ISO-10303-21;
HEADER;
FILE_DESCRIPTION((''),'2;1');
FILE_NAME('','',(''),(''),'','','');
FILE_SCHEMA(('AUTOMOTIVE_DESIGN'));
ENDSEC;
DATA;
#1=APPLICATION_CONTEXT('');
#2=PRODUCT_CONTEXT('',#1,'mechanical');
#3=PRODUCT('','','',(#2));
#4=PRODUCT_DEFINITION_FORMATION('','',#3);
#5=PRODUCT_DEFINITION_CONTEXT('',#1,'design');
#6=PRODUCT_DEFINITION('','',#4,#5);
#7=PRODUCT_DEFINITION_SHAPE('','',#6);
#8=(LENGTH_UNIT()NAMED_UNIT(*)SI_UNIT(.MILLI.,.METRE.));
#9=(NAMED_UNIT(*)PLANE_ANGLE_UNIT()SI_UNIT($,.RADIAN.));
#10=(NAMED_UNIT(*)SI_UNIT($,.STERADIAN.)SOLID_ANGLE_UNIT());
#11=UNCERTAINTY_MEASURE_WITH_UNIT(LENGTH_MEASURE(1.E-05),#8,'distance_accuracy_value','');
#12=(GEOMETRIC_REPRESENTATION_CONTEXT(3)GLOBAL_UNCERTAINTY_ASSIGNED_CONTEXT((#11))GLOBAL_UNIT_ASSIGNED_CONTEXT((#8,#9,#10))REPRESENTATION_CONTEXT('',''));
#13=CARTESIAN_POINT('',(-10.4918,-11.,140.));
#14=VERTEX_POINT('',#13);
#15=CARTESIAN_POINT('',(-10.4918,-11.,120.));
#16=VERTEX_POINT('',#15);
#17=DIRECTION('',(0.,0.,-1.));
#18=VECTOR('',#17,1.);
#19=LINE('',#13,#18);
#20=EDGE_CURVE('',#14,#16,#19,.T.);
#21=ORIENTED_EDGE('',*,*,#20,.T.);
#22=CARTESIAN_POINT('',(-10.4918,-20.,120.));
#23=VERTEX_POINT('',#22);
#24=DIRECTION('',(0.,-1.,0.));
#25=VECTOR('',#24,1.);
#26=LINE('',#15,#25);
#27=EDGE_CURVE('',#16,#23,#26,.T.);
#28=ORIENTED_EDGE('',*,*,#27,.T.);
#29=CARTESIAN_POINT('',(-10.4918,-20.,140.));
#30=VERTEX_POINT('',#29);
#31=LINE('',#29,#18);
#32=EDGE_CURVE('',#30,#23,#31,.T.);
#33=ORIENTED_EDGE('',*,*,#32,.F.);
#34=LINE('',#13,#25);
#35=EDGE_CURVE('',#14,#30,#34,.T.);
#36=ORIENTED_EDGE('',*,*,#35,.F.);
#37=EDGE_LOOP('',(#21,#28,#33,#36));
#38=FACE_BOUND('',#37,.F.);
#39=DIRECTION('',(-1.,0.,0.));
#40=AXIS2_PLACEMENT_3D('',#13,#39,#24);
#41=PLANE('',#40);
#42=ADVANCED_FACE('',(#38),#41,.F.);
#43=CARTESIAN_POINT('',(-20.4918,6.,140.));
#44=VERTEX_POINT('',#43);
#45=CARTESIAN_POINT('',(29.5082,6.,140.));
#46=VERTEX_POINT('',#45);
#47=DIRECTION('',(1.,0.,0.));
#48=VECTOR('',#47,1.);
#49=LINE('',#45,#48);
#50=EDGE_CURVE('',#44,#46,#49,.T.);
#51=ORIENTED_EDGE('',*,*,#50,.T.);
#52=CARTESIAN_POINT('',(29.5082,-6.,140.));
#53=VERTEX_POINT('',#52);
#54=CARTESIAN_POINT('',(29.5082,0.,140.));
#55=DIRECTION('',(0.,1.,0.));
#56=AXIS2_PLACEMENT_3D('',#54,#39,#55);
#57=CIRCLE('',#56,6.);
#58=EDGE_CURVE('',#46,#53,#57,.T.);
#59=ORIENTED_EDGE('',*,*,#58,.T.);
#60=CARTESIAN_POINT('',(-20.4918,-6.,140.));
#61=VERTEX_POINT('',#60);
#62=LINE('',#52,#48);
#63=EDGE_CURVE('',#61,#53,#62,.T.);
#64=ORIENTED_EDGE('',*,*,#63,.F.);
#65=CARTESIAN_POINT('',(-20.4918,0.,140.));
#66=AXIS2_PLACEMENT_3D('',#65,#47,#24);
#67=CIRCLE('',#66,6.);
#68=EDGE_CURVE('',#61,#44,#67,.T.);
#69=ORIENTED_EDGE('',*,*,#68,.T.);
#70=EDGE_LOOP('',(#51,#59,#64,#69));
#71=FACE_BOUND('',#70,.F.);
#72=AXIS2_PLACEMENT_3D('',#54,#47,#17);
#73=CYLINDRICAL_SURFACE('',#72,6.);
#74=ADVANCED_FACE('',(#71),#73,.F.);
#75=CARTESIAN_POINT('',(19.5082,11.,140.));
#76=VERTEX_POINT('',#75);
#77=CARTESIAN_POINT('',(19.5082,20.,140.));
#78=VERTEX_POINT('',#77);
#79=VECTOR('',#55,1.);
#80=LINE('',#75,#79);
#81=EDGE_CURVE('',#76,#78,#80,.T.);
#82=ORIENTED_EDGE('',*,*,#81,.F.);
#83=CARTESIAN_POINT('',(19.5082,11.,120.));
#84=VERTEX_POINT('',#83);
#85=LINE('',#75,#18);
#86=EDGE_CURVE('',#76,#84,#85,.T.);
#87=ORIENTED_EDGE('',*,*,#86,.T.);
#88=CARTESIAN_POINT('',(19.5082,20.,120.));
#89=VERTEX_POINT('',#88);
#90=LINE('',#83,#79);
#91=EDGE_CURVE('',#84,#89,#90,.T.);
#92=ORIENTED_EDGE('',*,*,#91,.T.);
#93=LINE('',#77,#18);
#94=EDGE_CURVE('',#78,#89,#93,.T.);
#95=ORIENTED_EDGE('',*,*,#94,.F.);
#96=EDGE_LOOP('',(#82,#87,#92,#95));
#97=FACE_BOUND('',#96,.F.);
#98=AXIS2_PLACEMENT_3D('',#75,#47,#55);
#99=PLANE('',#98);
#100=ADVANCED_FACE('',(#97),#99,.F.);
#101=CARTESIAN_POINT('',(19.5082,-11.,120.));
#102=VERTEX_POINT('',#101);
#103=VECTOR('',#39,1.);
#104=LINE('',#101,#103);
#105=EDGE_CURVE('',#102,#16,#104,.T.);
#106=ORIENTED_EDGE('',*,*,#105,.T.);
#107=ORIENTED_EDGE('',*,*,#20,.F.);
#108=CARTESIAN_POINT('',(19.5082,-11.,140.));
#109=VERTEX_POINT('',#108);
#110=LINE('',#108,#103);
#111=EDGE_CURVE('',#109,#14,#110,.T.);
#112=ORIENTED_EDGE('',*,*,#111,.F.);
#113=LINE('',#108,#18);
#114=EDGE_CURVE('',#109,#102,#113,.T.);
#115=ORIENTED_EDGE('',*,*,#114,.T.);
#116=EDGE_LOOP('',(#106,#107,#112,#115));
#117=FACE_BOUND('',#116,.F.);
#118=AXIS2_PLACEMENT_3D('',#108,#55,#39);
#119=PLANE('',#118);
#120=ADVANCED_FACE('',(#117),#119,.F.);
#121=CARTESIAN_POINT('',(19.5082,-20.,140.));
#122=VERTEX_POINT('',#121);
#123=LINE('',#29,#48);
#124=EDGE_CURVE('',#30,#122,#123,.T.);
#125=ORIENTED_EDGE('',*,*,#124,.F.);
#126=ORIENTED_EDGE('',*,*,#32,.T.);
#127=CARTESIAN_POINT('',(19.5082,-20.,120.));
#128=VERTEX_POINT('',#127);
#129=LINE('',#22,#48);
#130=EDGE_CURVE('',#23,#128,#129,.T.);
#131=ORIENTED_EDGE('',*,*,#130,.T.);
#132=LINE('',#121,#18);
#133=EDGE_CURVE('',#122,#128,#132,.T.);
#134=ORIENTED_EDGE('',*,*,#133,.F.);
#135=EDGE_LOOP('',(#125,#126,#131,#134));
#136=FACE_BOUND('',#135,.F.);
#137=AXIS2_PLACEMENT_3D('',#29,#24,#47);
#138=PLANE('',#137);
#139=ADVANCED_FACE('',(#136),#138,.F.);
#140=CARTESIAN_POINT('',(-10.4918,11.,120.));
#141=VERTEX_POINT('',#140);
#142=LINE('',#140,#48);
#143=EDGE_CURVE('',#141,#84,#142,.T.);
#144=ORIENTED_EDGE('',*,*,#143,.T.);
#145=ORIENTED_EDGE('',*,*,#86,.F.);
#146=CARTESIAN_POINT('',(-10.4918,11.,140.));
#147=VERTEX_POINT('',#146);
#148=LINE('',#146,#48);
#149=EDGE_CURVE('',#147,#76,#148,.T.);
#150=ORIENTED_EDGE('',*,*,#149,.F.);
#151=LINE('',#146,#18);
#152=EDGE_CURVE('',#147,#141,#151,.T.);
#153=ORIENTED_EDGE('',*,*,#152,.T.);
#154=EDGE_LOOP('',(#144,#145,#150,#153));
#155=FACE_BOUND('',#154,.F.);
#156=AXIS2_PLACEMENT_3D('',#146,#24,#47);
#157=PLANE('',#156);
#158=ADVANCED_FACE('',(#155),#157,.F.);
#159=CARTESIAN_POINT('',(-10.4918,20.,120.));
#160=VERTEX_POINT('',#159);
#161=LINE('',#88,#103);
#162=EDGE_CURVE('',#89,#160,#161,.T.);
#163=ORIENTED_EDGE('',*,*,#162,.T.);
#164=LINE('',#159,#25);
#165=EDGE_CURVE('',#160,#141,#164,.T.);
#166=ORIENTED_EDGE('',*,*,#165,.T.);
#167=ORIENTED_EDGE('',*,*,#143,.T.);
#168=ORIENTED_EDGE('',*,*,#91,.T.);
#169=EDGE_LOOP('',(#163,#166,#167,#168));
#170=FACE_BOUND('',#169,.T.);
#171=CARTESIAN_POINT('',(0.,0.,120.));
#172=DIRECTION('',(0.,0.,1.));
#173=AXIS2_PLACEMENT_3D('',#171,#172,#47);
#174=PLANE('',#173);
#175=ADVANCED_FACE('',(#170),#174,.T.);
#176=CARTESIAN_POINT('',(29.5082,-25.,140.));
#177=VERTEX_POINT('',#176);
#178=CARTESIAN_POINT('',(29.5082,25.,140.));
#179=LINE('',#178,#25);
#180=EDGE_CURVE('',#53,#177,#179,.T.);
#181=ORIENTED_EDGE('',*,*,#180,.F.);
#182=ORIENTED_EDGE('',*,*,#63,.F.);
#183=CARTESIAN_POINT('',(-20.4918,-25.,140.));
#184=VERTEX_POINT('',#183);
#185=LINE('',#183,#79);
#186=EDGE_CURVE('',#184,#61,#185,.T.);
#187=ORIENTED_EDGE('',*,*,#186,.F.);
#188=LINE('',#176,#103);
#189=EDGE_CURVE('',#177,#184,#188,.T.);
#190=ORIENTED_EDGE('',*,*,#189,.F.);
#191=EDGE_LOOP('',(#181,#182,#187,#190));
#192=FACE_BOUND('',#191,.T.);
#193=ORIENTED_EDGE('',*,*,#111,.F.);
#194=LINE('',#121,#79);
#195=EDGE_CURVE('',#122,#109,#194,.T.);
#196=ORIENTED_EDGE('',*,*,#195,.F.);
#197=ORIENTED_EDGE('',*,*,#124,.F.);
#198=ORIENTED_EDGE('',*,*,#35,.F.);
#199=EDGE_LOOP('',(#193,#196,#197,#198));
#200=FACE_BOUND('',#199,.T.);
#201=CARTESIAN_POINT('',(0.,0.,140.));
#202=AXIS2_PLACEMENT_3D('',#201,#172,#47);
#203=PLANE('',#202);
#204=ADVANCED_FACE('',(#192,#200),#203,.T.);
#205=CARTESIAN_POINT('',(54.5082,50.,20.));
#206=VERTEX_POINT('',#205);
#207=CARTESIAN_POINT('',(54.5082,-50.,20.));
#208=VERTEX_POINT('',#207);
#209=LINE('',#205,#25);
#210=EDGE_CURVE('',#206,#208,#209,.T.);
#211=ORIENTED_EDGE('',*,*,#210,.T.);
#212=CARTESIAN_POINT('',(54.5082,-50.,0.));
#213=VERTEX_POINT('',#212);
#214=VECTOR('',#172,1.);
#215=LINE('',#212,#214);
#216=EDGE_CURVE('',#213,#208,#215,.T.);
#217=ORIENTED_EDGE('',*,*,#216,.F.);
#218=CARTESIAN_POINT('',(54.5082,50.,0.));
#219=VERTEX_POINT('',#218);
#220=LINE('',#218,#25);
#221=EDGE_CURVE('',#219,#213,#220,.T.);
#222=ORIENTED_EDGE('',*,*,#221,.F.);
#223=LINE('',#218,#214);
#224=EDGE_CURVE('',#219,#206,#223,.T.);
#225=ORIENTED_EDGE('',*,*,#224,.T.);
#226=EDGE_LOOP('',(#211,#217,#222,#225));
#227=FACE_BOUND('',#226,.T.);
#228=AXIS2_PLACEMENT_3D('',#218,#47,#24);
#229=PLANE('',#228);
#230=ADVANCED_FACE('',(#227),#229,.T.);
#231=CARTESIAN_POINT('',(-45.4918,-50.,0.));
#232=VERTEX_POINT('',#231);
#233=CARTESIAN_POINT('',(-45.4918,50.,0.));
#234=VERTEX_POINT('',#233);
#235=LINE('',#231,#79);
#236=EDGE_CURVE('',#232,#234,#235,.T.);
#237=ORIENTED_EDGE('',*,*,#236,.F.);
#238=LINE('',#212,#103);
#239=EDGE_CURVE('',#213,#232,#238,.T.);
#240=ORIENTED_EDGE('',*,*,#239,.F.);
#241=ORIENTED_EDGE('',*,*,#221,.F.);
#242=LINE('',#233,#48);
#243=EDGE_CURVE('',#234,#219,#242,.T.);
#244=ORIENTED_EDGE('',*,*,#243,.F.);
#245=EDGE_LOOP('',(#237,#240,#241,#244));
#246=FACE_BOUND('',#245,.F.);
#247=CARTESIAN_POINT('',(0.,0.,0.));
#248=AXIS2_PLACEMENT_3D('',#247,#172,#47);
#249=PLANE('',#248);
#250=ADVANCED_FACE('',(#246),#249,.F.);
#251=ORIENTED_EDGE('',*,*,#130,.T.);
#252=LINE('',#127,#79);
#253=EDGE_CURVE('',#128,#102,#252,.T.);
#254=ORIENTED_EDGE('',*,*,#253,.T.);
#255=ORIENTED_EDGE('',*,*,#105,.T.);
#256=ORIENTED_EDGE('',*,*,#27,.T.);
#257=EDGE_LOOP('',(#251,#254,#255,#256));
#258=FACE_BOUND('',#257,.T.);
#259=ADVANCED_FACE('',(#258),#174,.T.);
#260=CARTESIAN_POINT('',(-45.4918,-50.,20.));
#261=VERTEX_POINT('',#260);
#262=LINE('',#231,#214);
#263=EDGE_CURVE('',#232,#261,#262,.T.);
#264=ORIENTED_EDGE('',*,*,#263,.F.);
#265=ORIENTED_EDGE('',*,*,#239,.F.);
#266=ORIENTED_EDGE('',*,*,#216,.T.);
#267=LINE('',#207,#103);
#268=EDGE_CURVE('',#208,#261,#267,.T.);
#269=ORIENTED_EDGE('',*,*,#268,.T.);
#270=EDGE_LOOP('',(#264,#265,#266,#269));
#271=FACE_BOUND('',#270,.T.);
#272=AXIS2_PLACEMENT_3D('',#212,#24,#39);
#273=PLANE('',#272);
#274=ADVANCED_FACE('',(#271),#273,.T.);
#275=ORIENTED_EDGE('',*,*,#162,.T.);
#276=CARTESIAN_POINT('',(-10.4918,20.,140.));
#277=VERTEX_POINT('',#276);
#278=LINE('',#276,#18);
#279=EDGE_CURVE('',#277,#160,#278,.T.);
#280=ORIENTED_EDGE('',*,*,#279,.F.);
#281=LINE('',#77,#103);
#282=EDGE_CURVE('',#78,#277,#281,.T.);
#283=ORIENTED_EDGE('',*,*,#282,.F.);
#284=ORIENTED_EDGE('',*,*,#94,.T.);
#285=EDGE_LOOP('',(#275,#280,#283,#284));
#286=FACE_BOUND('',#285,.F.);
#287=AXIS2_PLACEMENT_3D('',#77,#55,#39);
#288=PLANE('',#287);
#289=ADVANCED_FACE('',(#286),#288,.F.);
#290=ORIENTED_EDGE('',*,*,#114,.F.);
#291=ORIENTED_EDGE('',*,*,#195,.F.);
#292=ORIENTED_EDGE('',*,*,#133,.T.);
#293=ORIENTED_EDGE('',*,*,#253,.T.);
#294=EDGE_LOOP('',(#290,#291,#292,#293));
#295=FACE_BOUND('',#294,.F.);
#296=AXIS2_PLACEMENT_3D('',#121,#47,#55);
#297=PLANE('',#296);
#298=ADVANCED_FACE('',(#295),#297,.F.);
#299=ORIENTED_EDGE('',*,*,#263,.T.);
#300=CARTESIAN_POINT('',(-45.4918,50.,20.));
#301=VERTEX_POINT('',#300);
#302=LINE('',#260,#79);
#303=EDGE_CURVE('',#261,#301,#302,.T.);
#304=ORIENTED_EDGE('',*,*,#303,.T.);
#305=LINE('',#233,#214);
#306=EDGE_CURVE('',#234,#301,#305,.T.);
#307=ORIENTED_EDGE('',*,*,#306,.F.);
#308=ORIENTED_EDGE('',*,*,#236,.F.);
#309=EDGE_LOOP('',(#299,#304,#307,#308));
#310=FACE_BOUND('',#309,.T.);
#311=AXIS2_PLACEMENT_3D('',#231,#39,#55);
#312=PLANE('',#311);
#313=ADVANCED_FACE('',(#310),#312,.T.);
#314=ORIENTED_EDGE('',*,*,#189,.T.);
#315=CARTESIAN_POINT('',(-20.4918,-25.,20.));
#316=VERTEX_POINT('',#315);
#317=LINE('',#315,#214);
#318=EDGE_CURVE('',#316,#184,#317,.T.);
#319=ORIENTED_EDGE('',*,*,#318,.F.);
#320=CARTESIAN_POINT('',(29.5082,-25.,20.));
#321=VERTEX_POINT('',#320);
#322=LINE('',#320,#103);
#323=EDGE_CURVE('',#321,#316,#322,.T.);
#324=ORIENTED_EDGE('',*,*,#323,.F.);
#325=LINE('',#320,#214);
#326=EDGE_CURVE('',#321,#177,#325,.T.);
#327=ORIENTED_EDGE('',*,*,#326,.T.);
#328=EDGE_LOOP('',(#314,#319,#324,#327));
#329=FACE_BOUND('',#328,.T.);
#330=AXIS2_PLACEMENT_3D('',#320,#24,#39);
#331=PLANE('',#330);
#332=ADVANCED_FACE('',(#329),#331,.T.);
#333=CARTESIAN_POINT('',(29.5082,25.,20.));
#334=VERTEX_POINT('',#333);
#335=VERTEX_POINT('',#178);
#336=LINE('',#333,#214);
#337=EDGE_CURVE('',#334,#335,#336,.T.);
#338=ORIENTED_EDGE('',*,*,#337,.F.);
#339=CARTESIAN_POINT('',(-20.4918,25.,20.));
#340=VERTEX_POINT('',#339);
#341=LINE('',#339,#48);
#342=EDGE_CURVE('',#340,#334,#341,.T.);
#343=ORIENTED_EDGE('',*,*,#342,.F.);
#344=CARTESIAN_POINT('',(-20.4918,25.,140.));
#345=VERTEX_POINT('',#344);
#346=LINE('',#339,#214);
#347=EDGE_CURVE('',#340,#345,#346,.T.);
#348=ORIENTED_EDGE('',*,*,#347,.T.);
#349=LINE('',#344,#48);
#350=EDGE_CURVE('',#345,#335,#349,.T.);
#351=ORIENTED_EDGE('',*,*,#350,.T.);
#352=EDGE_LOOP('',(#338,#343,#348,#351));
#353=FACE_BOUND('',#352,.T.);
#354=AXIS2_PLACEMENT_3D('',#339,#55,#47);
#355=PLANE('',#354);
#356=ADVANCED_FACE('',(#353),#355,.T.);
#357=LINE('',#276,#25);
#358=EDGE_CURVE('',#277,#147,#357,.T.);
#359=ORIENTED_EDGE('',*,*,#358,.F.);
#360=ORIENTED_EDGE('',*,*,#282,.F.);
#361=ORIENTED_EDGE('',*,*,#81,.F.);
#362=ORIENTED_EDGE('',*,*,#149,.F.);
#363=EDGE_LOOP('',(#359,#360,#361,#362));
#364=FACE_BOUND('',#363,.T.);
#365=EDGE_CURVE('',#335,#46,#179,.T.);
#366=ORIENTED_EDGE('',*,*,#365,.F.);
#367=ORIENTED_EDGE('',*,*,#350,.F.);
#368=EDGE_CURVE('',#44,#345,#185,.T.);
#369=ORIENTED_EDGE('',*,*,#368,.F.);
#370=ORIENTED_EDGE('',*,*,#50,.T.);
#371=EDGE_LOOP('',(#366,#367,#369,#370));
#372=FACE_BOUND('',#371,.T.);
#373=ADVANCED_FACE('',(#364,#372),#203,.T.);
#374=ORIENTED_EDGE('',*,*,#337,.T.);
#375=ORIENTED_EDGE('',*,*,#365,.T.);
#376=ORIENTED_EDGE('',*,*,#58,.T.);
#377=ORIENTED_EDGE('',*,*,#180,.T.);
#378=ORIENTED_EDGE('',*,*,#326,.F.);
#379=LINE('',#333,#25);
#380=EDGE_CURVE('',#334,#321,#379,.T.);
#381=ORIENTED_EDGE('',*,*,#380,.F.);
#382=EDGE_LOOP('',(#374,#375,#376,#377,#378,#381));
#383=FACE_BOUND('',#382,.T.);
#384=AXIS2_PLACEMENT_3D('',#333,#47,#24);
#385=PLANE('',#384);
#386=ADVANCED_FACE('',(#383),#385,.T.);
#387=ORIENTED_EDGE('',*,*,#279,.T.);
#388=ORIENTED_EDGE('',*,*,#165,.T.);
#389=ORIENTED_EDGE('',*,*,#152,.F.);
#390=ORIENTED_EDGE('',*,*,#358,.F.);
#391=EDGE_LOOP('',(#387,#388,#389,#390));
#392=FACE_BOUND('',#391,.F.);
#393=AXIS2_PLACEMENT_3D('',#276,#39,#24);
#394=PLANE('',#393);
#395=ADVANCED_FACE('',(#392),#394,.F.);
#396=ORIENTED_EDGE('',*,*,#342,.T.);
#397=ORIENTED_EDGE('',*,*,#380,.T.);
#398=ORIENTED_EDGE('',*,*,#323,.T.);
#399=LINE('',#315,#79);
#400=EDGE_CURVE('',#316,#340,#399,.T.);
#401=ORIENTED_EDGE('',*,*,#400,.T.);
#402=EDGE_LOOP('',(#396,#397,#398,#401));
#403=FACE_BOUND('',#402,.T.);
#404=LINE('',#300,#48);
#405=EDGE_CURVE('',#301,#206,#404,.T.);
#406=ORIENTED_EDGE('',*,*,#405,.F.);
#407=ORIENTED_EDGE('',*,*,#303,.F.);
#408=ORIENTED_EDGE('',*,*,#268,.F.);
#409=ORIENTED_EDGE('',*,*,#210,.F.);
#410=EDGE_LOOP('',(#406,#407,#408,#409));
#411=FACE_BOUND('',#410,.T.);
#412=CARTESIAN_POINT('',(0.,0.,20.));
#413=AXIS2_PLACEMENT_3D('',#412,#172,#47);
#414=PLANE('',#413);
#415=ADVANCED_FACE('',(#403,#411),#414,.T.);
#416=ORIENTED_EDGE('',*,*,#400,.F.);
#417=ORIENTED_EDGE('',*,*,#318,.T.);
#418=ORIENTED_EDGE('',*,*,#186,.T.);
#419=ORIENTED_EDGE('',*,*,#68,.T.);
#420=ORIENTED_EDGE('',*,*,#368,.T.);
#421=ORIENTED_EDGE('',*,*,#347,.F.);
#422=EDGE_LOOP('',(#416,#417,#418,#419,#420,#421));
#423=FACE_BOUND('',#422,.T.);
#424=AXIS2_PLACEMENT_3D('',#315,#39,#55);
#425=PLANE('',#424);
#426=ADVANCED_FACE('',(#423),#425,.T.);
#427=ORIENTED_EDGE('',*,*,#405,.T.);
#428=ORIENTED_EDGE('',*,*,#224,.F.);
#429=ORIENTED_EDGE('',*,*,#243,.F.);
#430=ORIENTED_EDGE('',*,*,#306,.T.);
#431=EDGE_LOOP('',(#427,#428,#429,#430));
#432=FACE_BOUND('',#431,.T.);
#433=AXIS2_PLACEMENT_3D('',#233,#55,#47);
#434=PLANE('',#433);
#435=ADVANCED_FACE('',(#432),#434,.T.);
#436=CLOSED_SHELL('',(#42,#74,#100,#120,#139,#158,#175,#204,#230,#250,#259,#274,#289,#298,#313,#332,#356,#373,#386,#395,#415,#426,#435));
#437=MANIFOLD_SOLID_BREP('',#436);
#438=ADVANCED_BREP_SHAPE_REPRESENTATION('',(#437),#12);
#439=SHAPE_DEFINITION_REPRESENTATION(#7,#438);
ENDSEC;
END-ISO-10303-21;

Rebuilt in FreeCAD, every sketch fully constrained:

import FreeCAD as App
import Part
import Sketcher

V = App.Vector

doc = App.newDocument("Part")
body = doc.addObject("PartDesign::Body", "Body")

# Sketch on XY plane
sketch1 = body.newObject("Sketcher::SketchObject", "Sketch")
sketch1.AttachmentSupport = (doc.getObject("XY_Plane"), [""])
sketch1.MapMode = "FlatFace"
sketch1.addGeometry(Part.LineSegment(V(55, 50, 0), V(-45, 50, 0)), False)
sketch1.addGeometry(Part.LineSegment(V(-45, 50, 0), V(-45, -50, 0)), False)
sketch1.addGeometry(Part.LineSegment(V(-45, -50, 0), V(55, -50, 0)), False)
sketch1.addGeometry(Part.LineSegment(V(55, -50, 0), V(55, 50, 0)), False)
sketch1.addConstraint(Sketcher.Constraint("Coincident", 0, 2, 1, 1))
sketch1.addConstraint(Sketcher.Constraint("Coincident", 1, 2, 2, 1))
sketch1.addConstraint(Sketcher.Constraint("Coincident", 2, 2, 3, 1))
sketch1.addConstraint(Sketcher.Constraint("Coincident", 3, 2, 0, 1))
sketch1.addConstraint(Sketcher.Constraint("Horizontal", 0))
sketch1.addConstraint(Sketcher.Constraint("Vertical", 1))
sketch1.addConstraint(Sketcher.Constraint("Horizontal", 2))
sketch1.addConstraint(Sketcher.Constraint("Vertical", 3))
sketch1.addConstraint(Sketcher.Constraint("Equal", 2, 1))
sketch1.addConstraint(Sketcher.Constraint("DistanceX", 0, 2, 0, 1, 100.0))
sketch1.addConstraint(Sketcher.Constraint("DistanceY", -1, 1, 0, 2, 50.0))
sketch1.addConstraint(Sketcher.Constraint("DistanceX", 0, 2, -1, 1, 45.4918))
pad1 = body.newObject("PartDesign::Pad", "Pad")
pad1.Profile = sketch1
pad1.Length = 20

# Sketch on XY plane
sketch2 = body.newObject("Sketcher::SketchObject", "Sketch001")
sketch2.AttachmentSupport = (doc.getObject("XY_Plane"), [""])
sketch2.MapMode = "FlatFace"
sketch2.AttachmentOffset = App.Placement(V(0, 0, 20), App.Rotation())
sketch2.addGeometry(Part.LineSegment(V(30, 25, 0), V(-20, 25, 0)), False)
sketch2.addGeometry(Part.LineSegment(V(-20, 25, 0), V(-20, -25, 0)), False)
sketch2.addGeometry(Part.LineSegment(V(-20, -25, 0), V(30, -25, 0)), False)
sketch2.addGeometry(Part.LineSegment(V(30, -25, 0), V(30, 25, 0)), False)
sketch2.addConstraint(Sketcher.Constraint("Coincident", 0, 2, 1, 1))
sketch2.addConstraint(Sketcher.Constraint("Coincident", 1, 2, 2, 1))
sketch2.addConstraint(Sketcher.Constraint("Coincident", 2, 2, 3, 1))
sketch2.addConstraint(Sketcher.Constraint("Coincident", 3, 2, 0, 1))
sketch2.addConstraint(Sketcher.Constraint("Horizontal", 0))
sketch2.addConstraint(Sketcher.Constraint("Vertical", 1))
sketch2.addConstraint(Sketcher.Constraint("Horizontal", 2))
sketch2.addConstraint(Sketcher.Constraint("Vertical", 3))
sketch2.addConstraint(Sketcher.Constraint("Equal", 2, 1))
sketch2.addConstraint(Sketcher.Constraint("DistanceY", -1, 1, 0, 2, 25.0))
sketch2.addConstraint(Sketcher.Constraint("DistanceY", 1, 2, -1, 1, 25.0))
sketch2.addConstraint(Sketcher.Constraint("DistanceX", 0, 2, -1, 1, 20.4918))
pad2 = body.newObject("PartDesign::Pad", "Pad001")
pad2.Profile = sketch2
pad2.Length = 120

# Sketch on YZ plane
sketch3 = body.newObject("Sketcher::SketchObject", "Sketch002")
sketch3.AttachmentSupport = (doc.getObject("YZ_Plane"), [""])
sketch3.MapMode = "FlatFace"
sketch3.AttachmentOffset = App.Placement(V(0, 0, 29.5082), App.Rotation())
sketch3.addGeometry(Part.Circle(V(0, 140, 0), V(0, 0, 1), 6), False)
sketch3.addConstraint(Sketcher.Constraint("PointOnObject", 0, 3, -2))
sketch3.addConstraint(Sketcher.Constraint("Diameter", 0, 12.0))
sketch3.addConstraint(Sketcher.Constraint("DistanceY", -1, 1, 0, 3, 140.0))
pocket1 = body.newObject("PartDesign::Pocket", "Pocket")
pocket1.Profile = sketch3
pocket1.Length = 50

# Sketch on XY plane
sketch4 = body.newObject("Sketcher::SketchObject", "Sketch003")
sketch4.AttachmentSupport = (doc.getObject("XY_Plane"), [""])
sketch4.MapMode = "FlatFace"
sketch4.AttachmentOffset = App.Placement(V(0, 0, 140), App.Rotation())
sketch4.addGeometry(Part.LineSegment(V(20, -20, 0), V(20, -11, 0)), False)
sketch4.addGeometry(Part.LineSegment(V(20, -11, 0), V(-10, -11, 0)), False)
sketch4.addGeometry(Part.LineSegment(V(-10, -11, 0), V(-10, -20, 0)), False)
sketch4.addGeometry(Part.LineSegment(V(-10, -20, 0), V(20, -20, 0)), False)
sketch4.addGeometry(Part.LineSegment(V(20, 11, 0), V(20, 20, 0)), False)
sketch4.addGeometry(Part.LineSegment(V(20, 20, 0), V(-10, 20, 0)), False)
sketch4.addGeometry(Part.LineSegment(V(-10, 20, 0), V(-10, 11, 0)), False)
sketch4.addGeometry(Part.LineSegment(V(-10, 11, 0), V(20, 11, 0)), False)
sketch4.addConstraint(Sketcher.Constraint("Coincident", 0, 2, 1, 1))
sketch4.addConstraint(Sketcher.Constraint("Coincident", 1, 2, 2, 1))
sketch4.addConstraint(Sketcher.Constraint("Coincident", 2, 2, 3, 1))
sketch4.addConstraint(Sketcher.Constraint("Coincident", 3, 2, 0, 1))
sketch4.addConstraint(Sketcher.Constraint("Coincident", 4, 2, 5, 1))
sketch4.addConstraint(Sketcher.Constraint("Coincident", 5, 2, 6, 1))
sketch4.addConstraint(Sketcher.Constraint("Coincident", 6, 2, 7, 1))
sketch4.addConstraint(Sketcher.Constraint("Coincident", 7, 2, 4, 1))
sketch4.addConstraint(Sketcher.Constraint("Vertical", 0))
sketch4.addConstraint(Sketcher.Constraint("Horizontal", 1))
sketch4.addConstraint(Sketcher.Constraint("Vertical", 2))
sketch4.addConstraint(Sketcher.Constraint("Horizontal", 3))
sketch4.addConstraint(Sketcher.Constraint("Vertical", 4))
sketch4.addConstraint(Sketcher.Constraint("Horizontal", 5))
sketch4.addConstraint(Sketcher.Constraint("Vertical", 6))
sketch4.addConstraint(Sketcher.Constraint("Horizontal", 7))
sketch4.addConstraint(Sketcher.Constraint("Symmetric", 3, 2, 4, 2, -1))
sketch4.addConstraint(Sketcher.Constraint("Symmetric", 1, 2, 6, 2, -1))
sketch4.addConstraint(Sketcher.Constraint("DistanceX", 1, 2, 1, 1, 30.0))
sketch4.addConstraint(Sketcher.Constraint("DistanceY", 0, 1, 0, 2, 9.0))
sketch4.addConstraint(Sketcher.Constraint("DistanceY", 0, 2, -1, 1, 11.0))
sketch4.addConstraint(Sketcher.Constraint("DistanceX", -1, 1, 0, 2, 19.5082))
pocket2 = body.newObject("PartDesign::Pocket", "Pocket001")
pocket2.Profile = sketch4
pocket2.Length = 20

doc.recompute()
